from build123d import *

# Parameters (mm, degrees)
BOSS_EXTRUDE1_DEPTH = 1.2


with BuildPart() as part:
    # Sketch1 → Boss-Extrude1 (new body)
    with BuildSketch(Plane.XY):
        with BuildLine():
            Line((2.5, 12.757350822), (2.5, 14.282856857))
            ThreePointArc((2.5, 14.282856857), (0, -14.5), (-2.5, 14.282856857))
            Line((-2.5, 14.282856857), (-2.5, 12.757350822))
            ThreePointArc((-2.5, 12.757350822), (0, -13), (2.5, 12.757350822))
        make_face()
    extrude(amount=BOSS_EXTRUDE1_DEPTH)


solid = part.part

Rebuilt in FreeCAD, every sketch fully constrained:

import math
import FreeCAD as App
import Part
import Sketcher

V = App.Vector
Q = App.Units.Quantity

doc = App.newDocument("Part")
body = doc.addObject("PartDesign::Body", "Body")

sketch1 = body.newObject("Sketcher::SketchObject", "Sketch")
sketch1.AttachmentSupport = (doc.getObject("XY_Plane"), [""])
sketch1.MapMode = "FlatFace"
sketch1.addGeometry(Part.LineSegment(V(2.5, 14.3, 0), V(2.5, 12.8, 0)), False)
sketch1.addGeometry(Part.ArcOfCircle(Part.Circle(V(0, 0, 0), V(0, 0, 1), 13), math.radians(101), math.radians(439)), False)
sketch1.addGeometry(Part.LineSegment(V(-2.5, 12.8, 0), V(-2.5, 14.3, 0)), False)
sketch1.addGeometry(Part.ArcOfCircle(Part.Circle(V(0, 0, 0), V(0, 0, 1), 14.5), math.radians(100), math.radians(440)), False)
sketch1.addConstraint(Sketcher.Constraint("Coincident", 0, 2, 1, 2))
sketch1.addConstraint(Sketcher.Constraint("Coincident", 1, 1, 2, 1))
sketch1.addConstraint(Sketcher.Constraint("Coincident", 2, 2, 3, 1))
sketch1.addConstraint(Sketcher.Constraint("Coincident", 3, 2, 0, 1))
sketch1.addConstraint(Sketcher.Constraint("Vertical", 0))
sketch1.addConstraint(Sketcher.Constraint("Vertical", 2))
sketch1.addConstraint(Sketcher.Constraint("Coincident", 1, 3, -1, 1))
sketch1.addConstraint(Sketcher.Constraint("Coincident", 3, 3, -1, 1))
sketch1.addConstraint(Sketcher.Constraint("Horizontal", 0, 2, 1, 1))
sketch1.addConstraint(Sketcher.Constraint("Radius", 1, Q("13 mm")))
sketch1.addConstraint(Sketcher.Constraint("Radius", 3, Q("14.5 mm")))
sketch1.addConstraint(Sketcher.Constraint("DistanceX", 1, 1, 0, 2, Q("5 mm")))
pad1 = body.newObject("PartDesign::Pad", "Pad")
pad1.Profile = sketch1
pad1.Length = 1.2

doc.recompute()
